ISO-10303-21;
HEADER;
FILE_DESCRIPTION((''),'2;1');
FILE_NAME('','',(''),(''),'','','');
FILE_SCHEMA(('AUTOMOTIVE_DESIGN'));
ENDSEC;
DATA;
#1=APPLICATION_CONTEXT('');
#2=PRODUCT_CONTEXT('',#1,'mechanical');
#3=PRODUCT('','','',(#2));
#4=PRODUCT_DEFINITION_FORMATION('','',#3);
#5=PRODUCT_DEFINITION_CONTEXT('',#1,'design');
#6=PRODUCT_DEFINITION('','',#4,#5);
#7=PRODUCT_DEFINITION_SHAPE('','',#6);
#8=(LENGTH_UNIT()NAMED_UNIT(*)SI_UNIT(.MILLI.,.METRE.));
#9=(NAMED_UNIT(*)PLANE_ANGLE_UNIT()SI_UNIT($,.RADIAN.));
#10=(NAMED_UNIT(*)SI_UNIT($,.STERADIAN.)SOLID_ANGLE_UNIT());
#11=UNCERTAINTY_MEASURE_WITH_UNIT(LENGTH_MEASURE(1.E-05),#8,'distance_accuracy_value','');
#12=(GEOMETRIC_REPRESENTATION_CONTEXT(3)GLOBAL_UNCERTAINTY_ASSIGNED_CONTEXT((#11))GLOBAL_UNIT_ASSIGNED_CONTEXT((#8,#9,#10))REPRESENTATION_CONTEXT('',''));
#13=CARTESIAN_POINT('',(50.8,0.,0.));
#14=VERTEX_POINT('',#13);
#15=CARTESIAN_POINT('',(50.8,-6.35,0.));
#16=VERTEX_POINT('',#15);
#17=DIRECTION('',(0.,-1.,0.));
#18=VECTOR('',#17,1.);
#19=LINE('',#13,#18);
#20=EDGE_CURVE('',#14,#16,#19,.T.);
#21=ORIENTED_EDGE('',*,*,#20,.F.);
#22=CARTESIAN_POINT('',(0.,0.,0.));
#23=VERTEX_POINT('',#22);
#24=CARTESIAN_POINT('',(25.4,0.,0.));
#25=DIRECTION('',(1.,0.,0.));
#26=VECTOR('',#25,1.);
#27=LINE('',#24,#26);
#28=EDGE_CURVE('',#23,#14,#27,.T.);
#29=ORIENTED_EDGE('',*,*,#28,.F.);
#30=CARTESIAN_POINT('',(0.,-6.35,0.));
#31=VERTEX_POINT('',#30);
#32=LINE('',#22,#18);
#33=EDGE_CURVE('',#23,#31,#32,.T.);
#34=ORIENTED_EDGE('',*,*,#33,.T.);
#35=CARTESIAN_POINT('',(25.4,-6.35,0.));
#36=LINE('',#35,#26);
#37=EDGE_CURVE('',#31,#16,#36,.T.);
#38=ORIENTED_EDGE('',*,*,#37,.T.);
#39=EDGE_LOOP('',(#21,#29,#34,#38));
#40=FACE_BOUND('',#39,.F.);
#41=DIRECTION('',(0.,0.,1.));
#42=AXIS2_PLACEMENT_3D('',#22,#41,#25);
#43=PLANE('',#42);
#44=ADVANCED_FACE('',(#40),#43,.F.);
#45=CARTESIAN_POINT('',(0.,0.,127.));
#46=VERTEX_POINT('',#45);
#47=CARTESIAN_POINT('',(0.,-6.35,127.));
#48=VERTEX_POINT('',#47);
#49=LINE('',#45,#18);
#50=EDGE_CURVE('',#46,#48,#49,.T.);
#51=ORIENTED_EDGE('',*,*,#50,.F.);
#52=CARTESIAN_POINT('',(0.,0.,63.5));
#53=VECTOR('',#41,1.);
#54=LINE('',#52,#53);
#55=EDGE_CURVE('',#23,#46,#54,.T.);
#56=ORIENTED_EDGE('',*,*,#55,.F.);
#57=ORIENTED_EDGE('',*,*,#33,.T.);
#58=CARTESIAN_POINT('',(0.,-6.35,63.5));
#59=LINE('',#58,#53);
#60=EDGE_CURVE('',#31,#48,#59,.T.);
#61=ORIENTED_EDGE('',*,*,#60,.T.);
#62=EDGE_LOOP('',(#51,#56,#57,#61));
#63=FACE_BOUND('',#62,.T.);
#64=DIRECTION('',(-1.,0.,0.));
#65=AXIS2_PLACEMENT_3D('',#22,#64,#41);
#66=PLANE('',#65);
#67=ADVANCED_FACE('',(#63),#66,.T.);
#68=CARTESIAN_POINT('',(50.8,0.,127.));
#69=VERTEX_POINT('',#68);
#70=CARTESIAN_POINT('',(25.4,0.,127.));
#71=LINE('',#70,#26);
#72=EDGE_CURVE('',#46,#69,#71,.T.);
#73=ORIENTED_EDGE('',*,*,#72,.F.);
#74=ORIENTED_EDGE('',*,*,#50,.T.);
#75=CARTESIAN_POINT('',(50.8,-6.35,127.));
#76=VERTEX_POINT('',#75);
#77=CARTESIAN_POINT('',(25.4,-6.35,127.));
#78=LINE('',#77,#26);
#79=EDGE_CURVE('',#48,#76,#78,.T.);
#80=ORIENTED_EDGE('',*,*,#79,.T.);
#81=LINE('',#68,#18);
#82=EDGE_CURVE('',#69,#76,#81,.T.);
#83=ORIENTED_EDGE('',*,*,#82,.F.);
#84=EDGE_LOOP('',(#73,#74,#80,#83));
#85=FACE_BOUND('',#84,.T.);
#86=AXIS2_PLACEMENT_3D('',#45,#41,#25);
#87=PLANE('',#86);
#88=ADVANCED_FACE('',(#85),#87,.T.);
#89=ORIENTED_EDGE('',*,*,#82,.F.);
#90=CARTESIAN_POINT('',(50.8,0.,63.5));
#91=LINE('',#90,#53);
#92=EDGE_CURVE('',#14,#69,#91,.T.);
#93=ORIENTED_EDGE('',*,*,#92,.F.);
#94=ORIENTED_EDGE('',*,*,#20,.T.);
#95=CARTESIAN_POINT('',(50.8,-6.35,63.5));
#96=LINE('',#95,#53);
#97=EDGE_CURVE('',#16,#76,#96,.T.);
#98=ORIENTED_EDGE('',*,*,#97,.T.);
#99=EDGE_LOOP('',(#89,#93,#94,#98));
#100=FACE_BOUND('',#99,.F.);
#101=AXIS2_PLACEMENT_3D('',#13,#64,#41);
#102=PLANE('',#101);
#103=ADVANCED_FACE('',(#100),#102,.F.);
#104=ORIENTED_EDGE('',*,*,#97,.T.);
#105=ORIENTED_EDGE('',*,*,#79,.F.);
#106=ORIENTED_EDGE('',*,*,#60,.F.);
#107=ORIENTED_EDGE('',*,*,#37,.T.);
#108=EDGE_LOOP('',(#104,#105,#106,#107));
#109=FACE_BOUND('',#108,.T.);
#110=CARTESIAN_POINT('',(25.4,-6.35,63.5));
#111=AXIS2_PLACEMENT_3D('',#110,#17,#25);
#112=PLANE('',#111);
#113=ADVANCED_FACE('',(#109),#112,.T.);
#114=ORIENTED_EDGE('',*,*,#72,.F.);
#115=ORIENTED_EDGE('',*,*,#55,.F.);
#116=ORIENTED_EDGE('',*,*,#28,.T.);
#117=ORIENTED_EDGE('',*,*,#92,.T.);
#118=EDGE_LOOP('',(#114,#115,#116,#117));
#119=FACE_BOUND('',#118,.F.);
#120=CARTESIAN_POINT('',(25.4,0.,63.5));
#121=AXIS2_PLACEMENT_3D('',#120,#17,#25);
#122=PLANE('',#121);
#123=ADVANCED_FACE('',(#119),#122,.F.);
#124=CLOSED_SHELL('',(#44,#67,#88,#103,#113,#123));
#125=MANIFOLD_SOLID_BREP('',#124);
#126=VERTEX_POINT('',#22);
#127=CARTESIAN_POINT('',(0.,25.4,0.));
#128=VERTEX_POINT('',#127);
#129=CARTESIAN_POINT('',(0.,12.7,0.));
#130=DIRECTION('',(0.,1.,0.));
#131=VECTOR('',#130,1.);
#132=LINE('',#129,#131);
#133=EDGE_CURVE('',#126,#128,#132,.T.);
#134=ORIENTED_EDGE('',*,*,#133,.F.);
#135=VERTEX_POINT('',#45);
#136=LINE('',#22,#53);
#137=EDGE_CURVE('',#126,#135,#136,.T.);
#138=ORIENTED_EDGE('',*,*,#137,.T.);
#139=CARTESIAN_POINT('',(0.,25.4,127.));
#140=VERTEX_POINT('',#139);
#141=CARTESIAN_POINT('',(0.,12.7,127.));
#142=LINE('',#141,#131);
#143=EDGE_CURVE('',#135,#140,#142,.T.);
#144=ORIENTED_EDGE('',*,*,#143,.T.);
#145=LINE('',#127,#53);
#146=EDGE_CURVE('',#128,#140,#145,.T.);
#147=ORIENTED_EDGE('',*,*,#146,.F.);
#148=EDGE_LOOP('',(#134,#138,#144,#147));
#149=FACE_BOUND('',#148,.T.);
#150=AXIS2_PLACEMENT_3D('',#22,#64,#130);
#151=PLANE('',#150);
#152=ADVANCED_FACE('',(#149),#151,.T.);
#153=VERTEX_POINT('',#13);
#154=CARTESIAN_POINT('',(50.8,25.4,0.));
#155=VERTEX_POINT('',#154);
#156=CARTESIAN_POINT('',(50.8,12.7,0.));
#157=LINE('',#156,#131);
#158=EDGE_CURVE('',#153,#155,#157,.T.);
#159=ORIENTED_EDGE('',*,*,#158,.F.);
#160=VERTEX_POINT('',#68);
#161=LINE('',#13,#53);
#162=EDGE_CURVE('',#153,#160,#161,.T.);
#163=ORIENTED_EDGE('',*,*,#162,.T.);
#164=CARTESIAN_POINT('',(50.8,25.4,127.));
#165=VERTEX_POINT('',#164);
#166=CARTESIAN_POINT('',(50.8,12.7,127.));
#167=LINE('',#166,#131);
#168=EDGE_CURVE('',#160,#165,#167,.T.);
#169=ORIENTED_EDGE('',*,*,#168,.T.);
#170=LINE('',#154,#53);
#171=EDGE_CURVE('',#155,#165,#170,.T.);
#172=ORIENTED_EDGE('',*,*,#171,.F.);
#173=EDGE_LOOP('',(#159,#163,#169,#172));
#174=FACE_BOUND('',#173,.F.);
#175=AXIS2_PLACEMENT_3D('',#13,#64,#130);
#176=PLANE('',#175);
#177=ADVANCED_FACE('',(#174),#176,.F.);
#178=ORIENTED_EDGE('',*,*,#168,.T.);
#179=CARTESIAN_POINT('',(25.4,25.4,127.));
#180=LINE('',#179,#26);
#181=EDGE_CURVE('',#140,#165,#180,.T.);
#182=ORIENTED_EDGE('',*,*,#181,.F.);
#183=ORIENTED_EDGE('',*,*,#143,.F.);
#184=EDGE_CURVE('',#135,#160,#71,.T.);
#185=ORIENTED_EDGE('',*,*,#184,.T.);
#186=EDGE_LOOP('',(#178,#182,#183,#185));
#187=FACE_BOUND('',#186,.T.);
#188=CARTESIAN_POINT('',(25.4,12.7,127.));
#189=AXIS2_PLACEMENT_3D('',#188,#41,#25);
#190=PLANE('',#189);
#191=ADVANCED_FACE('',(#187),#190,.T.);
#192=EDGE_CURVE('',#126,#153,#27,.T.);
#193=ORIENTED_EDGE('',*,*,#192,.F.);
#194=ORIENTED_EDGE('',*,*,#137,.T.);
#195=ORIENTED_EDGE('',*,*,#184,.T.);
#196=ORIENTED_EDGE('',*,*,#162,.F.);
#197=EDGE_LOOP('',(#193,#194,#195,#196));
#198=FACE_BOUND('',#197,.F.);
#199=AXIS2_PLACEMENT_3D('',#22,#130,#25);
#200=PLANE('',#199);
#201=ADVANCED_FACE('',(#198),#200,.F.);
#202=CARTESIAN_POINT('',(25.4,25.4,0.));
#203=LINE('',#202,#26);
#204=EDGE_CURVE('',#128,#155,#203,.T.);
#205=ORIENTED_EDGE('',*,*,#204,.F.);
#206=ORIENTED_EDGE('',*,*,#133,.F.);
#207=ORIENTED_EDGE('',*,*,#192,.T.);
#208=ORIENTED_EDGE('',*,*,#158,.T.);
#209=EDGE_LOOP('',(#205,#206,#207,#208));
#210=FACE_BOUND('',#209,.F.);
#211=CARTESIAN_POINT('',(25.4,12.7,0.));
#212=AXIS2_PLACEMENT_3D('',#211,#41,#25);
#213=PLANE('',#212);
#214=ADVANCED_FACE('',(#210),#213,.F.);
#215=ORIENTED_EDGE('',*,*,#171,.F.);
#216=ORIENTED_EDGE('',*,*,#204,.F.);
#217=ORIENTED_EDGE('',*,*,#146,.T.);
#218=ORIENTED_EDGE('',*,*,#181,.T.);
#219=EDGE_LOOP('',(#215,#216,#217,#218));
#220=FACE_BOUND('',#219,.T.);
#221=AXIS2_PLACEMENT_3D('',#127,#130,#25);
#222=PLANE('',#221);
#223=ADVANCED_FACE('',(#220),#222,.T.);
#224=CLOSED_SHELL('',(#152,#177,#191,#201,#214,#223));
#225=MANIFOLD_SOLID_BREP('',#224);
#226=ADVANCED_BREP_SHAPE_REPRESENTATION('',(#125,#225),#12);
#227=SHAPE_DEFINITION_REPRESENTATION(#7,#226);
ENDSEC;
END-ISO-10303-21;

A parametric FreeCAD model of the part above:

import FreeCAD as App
import Part
import Sketcher
Q = App.Units.Quantity

doc = App.newDocument("Part")
body = doc.addObject("PartDesign::Body", "Body")

# Sketch on XY plane
sketch1 = doc.addObject("Sketcher::SketchObject", "Sketch")
body.addObject(sketch1)
sketch1.AttachmentSupport = (doc.XY_Plane, [""])
sketch1.MapMode = "FlatFace"
sketch1.addGeometry([
    Part.LineSegment(App.Vector(0, 25, 0), App.Vector(0, 0, 0)),
    Part.LineSegment(App.Vector(0, 0, 0), App.Vector(51, 0, 0)),
    Part.LineSegment(App.Vector(51, 0, 0), App.Vector(51, 25, 0)),
    Part.LineSegment(App.Vector(51, 25, 0), App.Vector(0, 25, 0)),
], False)
sketch1.addConstraint([
    Sketcher.Constraint("Coincident", 0, 2, 1, 1),
    Sketcher.Constraint("Coincident", 1, 2, 2, 1),
    Sketcher.Constraint("Coincident", 2, 2, 3, 1),
    Sketcher.Constraint("Coincident", 3, 2, 0, 1),
    Sketcher.Constraint("Vertical", 0),
    Sketcher.Constraint("Horizontal", 1),
    Sketcher.Constraint("Vertical", 2),
    Sketcher.Constraint("Horizontal", 3),
    Sketcher.Constraint("Coincident", 0, 2, -1, 1),
    Sketcher.Constraint("DistanceX", 1, 1, 1, 2, Q("2 in")),
    Sketcher.Constraint("DistanceY", 0, 2, 0, 1, Q("1 in")),
])
pad1 = doc.addObject("PartDesign::Pad", "Pad")
body.addObject(pad1)
pad1.Profile = sketch1
pad1.Length = Q("5 in")
body2 = doc.addObject("PartDesign::Body", "Body001")

# Sketch on XZ plane
sketch2 = doc.addObject("Sketcher::SketchObject", "Sketch001")
body2.addObject(sketch2)
sketch2.AttachmentSupport = (doc.getObject("XZ_Plane001"), [""])
sketch2.MapMode = "FlatFace"
sketch2.addGeometry([
    Part.LineSegment(App.Vector(0, 127, 0), App.Vector(0, 0, 0)),
    Part.LineSegment(App.Vector(0, 0, 0), App.Vector(51, 0, 0)),
    Part.LineSegment(App.Vector(51, 0, 0), App.Vector(51, 127, 0)),
    Part.LineSegment(App.Vector(51, 127, 0), App.Vector(0, 127, 0)),
], False)
sketch2.addConstraint([
    Sketcher.Constraint("Coincident", 0, 2, 1, 1),
    Sketcher.Constraint("Coincident", 1, 2, 2, 1),
    Sketcher.Constraint("Coincident", 2, 2, 3, 1),
    Sketcher.Constraint("Coincident", 3, 2, 0, 1),
    Sketcher.Constraint("Vertical", 0),
    Sketcher.Constraint("Horizontal", 1),
    Sketcher.Constraint("Vertical", 2),
    Sketcher.Constraint("Horizontal", 3),
    Sketcher.Constraint("Coincident", 0, 2, -1, 1),
    Sketcher.Constraint("DistanceX", 1, 1, 1, 2, Q("2 in")),
    Sketcher.Constraint("DistanceY", 0, 2, 0, 1, Q("5 in")),
])
pad2 = doc.addObject("PartDesign::Pad", "Pad001")
body2.addObject(pad2)
pad2.Profile = sketch2
pad2.Length = Q("0.25 in")

doc.recompute()
